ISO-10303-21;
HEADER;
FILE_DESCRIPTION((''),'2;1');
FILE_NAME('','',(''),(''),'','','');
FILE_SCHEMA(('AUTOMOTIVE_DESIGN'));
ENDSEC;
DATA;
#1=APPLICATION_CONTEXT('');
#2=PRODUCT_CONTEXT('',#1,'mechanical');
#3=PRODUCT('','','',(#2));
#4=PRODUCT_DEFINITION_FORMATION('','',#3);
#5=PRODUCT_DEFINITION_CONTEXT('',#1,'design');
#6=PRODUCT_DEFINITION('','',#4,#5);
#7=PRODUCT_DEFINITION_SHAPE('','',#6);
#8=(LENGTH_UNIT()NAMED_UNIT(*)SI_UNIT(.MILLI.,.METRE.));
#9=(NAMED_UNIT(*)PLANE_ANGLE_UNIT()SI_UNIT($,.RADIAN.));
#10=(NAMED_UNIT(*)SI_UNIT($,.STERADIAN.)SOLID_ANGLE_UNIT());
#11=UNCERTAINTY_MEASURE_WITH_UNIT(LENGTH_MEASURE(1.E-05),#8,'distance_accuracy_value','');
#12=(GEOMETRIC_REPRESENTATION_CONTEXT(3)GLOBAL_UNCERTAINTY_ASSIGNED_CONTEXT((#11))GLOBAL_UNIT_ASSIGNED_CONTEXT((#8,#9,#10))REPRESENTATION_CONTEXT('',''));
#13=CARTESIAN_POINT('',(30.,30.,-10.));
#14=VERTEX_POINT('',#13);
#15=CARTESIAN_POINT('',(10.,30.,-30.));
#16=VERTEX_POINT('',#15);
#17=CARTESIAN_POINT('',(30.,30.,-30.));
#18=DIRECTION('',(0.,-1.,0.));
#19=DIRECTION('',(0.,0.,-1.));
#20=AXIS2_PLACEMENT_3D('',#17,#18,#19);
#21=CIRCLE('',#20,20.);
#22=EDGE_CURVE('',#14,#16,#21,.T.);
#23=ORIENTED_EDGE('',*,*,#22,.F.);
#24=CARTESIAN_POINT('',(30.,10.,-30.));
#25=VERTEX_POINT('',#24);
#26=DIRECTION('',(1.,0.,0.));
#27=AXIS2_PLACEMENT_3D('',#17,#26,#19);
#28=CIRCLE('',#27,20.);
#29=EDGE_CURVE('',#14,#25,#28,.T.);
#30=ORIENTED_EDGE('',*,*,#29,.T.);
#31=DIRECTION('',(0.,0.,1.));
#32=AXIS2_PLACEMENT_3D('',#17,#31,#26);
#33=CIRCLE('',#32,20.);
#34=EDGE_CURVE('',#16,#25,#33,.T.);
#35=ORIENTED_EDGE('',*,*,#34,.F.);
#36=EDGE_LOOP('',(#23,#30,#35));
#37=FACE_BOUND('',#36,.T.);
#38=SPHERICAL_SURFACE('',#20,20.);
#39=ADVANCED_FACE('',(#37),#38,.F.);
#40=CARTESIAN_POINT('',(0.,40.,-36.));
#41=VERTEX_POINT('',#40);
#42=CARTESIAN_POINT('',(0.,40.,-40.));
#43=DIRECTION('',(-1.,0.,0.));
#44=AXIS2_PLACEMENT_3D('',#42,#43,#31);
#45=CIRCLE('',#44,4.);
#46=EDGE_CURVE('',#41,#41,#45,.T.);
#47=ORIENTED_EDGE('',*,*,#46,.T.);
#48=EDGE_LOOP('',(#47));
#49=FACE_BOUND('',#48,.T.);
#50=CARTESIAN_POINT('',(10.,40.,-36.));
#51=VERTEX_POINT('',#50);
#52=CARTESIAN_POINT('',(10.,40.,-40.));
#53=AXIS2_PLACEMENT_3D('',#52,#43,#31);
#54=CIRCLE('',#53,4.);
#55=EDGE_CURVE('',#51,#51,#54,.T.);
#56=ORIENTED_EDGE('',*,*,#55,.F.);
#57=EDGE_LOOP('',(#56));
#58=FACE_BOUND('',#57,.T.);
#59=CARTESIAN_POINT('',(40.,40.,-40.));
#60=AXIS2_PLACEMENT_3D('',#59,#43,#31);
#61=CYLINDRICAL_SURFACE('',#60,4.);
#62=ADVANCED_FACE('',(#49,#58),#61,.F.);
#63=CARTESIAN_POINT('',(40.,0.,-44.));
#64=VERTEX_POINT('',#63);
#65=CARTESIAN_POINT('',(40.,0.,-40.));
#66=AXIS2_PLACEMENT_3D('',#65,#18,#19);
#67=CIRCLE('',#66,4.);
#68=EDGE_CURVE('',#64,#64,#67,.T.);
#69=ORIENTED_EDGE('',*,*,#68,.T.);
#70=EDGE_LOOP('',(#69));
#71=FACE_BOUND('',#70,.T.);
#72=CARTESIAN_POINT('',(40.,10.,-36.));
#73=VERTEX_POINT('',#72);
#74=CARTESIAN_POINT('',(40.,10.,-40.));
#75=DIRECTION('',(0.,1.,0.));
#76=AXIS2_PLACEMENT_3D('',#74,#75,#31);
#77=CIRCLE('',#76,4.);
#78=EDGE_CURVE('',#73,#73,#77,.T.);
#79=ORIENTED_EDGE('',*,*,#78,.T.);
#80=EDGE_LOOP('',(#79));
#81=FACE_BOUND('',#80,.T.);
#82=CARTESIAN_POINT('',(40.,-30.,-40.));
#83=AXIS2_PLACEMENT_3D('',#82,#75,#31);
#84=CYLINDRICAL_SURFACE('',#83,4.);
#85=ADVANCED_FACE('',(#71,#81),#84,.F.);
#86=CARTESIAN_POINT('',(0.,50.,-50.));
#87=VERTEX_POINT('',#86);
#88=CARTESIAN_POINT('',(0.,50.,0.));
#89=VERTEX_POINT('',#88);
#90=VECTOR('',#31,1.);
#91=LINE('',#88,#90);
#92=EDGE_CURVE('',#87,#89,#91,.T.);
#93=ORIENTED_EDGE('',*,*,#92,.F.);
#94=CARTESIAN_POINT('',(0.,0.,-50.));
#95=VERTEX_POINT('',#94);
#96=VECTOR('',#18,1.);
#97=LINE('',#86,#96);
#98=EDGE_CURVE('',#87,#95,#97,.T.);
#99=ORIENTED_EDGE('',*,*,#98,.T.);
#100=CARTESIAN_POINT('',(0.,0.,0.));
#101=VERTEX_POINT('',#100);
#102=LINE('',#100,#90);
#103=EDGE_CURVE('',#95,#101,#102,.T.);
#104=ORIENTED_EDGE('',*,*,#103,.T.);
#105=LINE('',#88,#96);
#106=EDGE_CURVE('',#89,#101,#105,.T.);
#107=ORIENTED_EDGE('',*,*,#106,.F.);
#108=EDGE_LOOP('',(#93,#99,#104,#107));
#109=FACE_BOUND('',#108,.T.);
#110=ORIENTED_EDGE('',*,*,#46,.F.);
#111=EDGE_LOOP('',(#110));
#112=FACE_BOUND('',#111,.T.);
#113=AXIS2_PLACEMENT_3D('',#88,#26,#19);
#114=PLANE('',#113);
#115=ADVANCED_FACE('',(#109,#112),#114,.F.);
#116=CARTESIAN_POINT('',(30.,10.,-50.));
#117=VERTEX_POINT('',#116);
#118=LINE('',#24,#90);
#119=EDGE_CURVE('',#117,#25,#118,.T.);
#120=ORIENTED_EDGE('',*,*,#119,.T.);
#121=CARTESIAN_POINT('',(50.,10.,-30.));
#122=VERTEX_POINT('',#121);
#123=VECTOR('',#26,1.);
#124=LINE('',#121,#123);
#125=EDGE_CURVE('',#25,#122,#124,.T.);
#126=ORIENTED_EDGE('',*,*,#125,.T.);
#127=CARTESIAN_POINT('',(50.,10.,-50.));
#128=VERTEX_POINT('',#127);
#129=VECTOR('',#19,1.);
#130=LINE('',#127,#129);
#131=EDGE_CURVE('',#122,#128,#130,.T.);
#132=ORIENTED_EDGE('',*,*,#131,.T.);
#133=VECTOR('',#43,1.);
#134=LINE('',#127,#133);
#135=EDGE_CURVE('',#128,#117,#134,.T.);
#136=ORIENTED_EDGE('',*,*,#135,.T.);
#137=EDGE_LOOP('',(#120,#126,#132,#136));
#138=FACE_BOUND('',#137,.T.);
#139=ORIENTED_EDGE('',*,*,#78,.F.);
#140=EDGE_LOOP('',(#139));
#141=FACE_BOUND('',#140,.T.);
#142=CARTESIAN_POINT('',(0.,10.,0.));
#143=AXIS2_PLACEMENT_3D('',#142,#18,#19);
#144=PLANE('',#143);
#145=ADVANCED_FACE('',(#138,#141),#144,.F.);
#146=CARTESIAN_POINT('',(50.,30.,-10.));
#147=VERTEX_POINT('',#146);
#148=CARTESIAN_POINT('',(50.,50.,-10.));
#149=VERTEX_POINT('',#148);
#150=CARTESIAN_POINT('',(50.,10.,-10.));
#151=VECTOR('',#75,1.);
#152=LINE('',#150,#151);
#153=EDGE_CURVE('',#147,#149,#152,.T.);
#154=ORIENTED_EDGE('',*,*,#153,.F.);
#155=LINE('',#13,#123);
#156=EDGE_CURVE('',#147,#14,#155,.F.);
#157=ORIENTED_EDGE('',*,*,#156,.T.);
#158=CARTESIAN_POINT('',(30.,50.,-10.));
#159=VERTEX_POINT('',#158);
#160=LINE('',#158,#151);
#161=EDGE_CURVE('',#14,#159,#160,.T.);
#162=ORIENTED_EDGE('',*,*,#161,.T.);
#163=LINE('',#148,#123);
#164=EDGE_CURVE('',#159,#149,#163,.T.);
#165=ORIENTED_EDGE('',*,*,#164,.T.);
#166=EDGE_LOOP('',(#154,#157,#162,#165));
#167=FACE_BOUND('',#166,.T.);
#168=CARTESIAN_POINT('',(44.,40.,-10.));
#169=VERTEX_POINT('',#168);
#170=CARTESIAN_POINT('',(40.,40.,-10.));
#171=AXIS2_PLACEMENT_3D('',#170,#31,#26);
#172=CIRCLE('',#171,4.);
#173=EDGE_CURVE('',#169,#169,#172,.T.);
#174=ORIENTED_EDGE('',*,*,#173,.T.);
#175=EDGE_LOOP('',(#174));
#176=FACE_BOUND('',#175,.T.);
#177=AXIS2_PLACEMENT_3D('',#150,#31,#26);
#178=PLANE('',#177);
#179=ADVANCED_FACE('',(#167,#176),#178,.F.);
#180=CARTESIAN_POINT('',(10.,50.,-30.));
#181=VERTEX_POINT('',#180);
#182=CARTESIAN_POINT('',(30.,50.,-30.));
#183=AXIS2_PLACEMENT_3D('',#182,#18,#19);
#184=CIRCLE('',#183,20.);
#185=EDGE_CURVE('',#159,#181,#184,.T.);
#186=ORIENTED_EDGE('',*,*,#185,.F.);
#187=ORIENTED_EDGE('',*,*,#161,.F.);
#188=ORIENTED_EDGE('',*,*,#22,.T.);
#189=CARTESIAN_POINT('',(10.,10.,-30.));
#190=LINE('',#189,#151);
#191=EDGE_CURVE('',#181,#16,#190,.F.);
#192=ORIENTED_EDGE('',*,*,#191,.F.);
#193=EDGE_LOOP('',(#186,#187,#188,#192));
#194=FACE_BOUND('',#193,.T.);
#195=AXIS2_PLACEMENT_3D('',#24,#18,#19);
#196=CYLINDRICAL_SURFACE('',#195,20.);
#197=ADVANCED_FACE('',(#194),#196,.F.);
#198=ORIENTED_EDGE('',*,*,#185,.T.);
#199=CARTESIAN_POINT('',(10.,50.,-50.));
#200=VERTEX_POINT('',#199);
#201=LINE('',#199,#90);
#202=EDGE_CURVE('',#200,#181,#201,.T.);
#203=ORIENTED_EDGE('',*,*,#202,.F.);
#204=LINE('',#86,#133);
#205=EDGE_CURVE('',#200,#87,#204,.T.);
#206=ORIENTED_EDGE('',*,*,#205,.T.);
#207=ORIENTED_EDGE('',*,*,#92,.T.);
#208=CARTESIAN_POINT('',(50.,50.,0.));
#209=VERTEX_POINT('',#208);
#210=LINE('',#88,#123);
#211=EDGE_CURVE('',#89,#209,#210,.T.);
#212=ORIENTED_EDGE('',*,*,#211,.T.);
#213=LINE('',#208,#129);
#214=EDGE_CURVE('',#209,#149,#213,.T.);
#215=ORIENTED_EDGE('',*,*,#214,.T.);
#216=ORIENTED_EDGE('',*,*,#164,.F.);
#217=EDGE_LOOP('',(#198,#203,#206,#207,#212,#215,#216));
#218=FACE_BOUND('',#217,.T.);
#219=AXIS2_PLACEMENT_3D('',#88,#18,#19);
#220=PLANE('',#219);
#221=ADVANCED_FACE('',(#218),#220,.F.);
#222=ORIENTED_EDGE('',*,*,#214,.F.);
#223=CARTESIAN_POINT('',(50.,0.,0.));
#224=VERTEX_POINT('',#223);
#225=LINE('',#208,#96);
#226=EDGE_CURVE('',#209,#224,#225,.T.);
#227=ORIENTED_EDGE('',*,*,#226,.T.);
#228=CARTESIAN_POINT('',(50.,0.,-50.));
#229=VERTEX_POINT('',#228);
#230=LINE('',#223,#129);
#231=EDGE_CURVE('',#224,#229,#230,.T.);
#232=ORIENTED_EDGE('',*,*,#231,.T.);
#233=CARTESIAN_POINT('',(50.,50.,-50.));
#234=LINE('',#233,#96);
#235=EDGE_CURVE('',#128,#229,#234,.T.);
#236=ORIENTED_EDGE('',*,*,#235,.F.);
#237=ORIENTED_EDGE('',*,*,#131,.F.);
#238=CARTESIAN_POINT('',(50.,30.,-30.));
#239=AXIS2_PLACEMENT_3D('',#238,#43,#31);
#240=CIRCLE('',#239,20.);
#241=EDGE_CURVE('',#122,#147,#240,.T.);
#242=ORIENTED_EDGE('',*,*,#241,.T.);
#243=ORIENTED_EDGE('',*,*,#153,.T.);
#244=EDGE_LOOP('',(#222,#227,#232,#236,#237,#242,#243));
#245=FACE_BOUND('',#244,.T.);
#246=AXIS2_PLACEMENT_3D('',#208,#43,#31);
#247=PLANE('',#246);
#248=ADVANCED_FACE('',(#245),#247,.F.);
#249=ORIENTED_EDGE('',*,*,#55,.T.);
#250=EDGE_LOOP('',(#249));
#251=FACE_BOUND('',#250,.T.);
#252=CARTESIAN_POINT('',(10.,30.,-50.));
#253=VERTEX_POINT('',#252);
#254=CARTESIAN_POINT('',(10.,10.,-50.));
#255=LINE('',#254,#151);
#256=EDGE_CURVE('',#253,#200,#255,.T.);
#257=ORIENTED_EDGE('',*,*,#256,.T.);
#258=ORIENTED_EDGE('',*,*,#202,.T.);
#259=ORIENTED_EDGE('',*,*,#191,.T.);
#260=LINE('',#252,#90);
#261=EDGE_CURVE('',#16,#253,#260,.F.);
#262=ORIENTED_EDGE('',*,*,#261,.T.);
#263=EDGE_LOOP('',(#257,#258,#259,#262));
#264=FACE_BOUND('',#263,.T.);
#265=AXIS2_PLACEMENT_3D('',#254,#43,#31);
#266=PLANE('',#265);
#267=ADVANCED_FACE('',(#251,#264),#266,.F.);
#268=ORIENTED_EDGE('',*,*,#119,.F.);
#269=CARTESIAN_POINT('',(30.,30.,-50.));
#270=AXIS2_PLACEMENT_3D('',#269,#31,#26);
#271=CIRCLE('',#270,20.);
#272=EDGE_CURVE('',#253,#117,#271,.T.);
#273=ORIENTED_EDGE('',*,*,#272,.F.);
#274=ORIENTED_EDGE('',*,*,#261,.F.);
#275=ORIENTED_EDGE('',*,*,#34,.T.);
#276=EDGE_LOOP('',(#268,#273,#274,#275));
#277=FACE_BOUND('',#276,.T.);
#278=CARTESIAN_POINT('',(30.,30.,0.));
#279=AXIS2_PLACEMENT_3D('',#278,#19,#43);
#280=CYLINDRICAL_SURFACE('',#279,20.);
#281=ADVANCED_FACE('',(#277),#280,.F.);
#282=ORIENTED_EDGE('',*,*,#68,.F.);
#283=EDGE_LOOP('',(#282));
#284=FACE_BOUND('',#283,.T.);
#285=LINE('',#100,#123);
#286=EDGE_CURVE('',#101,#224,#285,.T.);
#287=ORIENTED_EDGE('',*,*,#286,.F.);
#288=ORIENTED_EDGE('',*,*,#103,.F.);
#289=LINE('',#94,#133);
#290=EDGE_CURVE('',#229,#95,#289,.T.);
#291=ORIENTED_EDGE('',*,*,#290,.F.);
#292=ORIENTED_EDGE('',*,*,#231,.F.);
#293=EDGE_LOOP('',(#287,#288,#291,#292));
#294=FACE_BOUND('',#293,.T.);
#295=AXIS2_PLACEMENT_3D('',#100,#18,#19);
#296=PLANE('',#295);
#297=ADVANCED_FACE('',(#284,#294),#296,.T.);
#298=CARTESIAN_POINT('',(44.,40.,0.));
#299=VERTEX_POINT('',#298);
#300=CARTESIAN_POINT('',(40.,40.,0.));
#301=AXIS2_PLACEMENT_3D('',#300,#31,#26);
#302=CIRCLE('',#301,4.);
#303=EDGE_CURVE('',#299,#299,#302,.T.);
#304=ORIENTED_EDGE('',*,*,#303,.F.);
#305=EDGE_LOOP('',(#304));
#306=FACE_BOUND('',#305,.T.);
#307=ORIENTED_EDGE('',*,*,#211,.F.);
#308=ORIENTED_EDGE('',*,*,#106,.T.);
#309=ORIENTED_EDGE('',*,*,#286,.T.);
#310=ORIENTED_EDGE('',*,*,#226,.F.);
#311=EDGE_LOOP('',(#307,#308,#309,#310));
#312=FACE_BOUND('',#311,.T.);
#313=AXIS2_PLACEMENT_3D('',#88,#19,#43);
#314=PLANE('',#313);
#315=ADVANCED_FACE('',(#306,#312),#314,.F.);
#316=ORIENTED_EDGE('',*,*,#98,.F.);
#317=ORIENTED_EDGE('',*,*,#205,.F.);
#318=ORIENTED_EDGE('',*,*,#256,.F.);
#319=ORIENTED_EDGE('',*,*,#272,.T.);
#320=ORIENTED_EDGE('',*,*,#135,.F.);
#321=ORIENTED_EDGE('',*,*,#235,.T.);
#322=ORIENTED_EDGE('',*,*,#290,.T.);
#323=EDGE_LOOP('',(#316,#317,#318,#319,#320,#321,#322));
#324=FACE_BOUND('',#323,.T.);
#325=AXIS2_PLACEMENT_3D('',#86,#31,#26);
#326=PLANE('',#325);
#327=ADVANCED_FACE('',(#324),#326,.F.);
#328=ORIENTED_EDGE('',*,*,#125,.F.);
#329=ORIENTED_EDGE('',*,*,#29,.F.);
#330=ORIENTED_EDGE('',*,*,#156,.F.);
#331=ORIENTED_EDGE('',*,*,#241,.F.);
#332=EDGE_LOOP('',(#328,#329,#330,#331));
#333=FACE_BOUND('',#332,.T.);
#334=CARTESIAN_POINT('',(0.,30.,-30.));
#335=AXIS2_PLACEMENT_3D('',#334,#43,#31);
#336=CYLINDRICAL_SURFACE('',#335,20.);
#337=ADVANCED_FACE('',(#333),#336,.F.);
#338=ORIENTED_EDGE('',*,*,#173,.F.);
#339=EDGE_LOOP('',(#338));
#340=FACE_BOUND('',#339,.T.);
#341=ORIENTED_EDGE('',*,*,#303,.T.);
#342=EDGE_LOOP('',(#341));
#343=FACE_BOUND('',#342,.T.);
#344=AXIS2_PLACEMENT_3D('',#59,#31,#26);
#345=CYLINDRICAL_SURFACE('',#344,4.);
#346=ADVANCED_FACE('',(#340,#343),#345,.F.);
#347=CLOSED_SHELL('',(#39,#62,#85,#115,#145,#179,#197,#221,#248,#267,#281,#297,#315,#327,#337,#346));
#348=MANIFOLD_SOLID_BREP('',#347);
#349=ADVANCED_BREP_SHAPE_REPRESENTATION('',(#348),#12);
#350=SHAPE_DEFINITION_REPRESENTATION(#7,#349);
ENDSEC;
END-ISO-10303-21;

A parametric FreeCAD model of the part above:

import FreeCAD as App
import Part
import Sketcher
Q = App.Units.Quantity


def edges_at(feature, points):
    """Names of the edges that pass closest to the given points."""
    edges = feature.Shape.Edges
    near = lambda p: min(range(len(edges)), key=lambda i: edges[i].distToShape(Part.Vertex(*p))[0])
    return sorted({f"Edge{near(p) + 1}" for p in points})


def add_polygon(sketch, points):
    """Adds a closed chain of lines whose ends are joined by coincident constraints."""
    first, n = sketch.GeometryCount, len(points)
    for a, b in zip(points, points[1:] + points[:1]):
        sketch.addGeometry(Part.LineSegment(App.Vector(*a, 0), App.Vector(*b, 0)), False)
    for i in range(n):
        sketch.addConstraint(Sketcher.Constraint("Coincident", first + i, 2, first + (i + 1) % n, 1))

doc = App.newDocument("Part")
body = doc.addObject("PartDesign::Body", "Body")

sketch1 = body.newObject("Sketcher::SketchObject", "Sketch")
sketch1.AttachmentSupport = (doc.getObject("XZ_Plane"), [""])
sketch1.MapMode = "FlatFace"
add_polygon(sketch1, [(0, -50), (0, 0), (50, 0), (50, -50)])
sketch1.addConstraint([
    Sketcher.Constraint("Vertical", 0),
    Sketcher.Constraint("Horizontal", 1),
    Sketcher.Constraint("Vertical", 2),
    Sketcher.Constraint("Horizontal", 3),
    Sketcher.Constraint("Coincident", 0, 2, -1, 1),
    Sketcher.Constraint("Equal", 3, 0),
    Sketcher.Constraint("DistanceX", 1, 1, 1, 2, Q("50 mm")),
])
pad1 = body.newObject("PartDesign::Pad", "Pad")
pad1.Profile = sketch1
pad1.Length = 50
pad1.Reversed = True

sketch2 = body.newObject("Sketcher::SketchObject", "Sketch001")
sketch2.AttachmentSupport = (doc.getObject("XZ_Plane"), [""])
sketch2.MapMode = "FlatFace"
sketch2.AttachmentOffset = App.Placement(App.Vector(0, 0, -50), App.Rotation())
add_polygon(sketch2, [(10, -50), (10, -10), (50, -10), (50, -50)])
sketch2.addConstraint([
    Sketcher.Constraint("Vertical", 0),
    Sketcher.Constraint("Horizontal", 1),
    Sketcher.Constraint("Vertical", 2),
    Sketcher.Constraint("Horizontal", 3),
    Sketcher.Constraint("Equal", 3, 0),
    Sketcher.Constraint("DistanceX", 1, 1, 1, 2, Q("40 mm")),
    Sketcher.Constraint("DistanceX", -1, 1, 0, 2, Q("10 mm")),
    Sketcher.Constraint("DistanceY", 0, 2, -1, 1, Q("10 mm")),
])
pocket1 = body.newObject("PartDesign::Pocket", "Pocket")
pocket1.Profile = sketch2
pocket1.Length = 40
pocket1.Reversed = True

sketch3 = body.newObject("Sketcher::SketchObject", "Sketch002")
sketch3.AttachmentSupport = (doc.getObject("XZ_Plane"), [""])
sketch3.MapMode = "FlatFace"
sketch3.AttachmentOffset = App.Placement(App.Vector(0, 0, -10), App.Rotation())
sketch3.addGeometry(Part.Circle(App.Vector(40, -40, 0), App.Vector(0, 0, 1), 4), False)
sketch3.addConstraint([
    Sketcher.Constraint("Diameter", 0, Q("8 mm")),
    Sketcher.Constraint("DistanceX", -1, 1, 0, 3, Q("40 mm")),
    Sketcher.Constraint("DistanceY", 0, 3, -1, 1, Q("40 mm")),
])
pocket2 = body.newObject("PartDesign::Pocket", "Pocket001")
pocket2.Profile = sketch3
pocket2.Length = 40
pocket2.Reversed = True

sketch4 = body.newObject("Sketcher::SketchObject", "Sketch003")
sketch4.AttachmentSupport = (doc.getObject("XY_Plane"), [""])
sketch4.MapMode = "FlatFace"
sketch4.addGeometry(Part.Circle(App.Vector(40, 40, 0), App.Vector(0, 0, 1), 4), False)
sketch4.addConstraint([
    Sketcher.Constraint("Diameter", 0, Q("8 mm")),
    Sketcher.Constraint("DistanceX", -1, 1, 0, 3, Q("40 mm")),
    Sketcher.Constraint("DistanceY", -1, 1, 0, 3, Q("40 mm")),
])
pocket3 = body.newObject("PartDesign::Pocket", "Pocket002")
pocket3.Profile = sketch4
pocket3.Length = 40

sketch5 = body.newObject("Sketcher::SketchObject", "Sketch004")
sketch5.AttachmentSupport = (doc.getObject("YZ_Plane"), [""])
sketch5.MapMode = "FlatFace"
sketch5.addGeometry(Part.Circle(App.Vector(40, -40, 0), App.Vector(0, 0, 1), 4), False)
sketch5.addConstraint([
    Sketcher.Constraint("Diameter", 0, Q("8 mm")),
    Sketcher.Constraint("DistanceX", -1, 1, 0, 3, Q("40 mm")),
    Sketcher.Constraint("DistanceY", 0, 3, -1, 1, Q("40 mm")),
])
pocket4 = body.newObject("PartDesign::Pocket", "Pocket003")
pocket4.Profile = sketch5
pocket4.Length = 40
pocket4.Reversed = True
doc.recompute()

fillet = body.newObject("PartDesign::Fillet", "Fillet")
fillet.Base = (pocket4, edges_at(pocket4, [(10, 30, -10)]))
fillet.Radius = 20
doc.recompute()

fillet2 = body.newObject("PartDesign::Fillet", "Fillet001")
fillet2.Base = (fillet, edges_at(fillet, [(10, 10, -40), (40, 10, -10), (15.858, 10, -15.858)]))
fillet2.Radius = 20

doc.recompute()
